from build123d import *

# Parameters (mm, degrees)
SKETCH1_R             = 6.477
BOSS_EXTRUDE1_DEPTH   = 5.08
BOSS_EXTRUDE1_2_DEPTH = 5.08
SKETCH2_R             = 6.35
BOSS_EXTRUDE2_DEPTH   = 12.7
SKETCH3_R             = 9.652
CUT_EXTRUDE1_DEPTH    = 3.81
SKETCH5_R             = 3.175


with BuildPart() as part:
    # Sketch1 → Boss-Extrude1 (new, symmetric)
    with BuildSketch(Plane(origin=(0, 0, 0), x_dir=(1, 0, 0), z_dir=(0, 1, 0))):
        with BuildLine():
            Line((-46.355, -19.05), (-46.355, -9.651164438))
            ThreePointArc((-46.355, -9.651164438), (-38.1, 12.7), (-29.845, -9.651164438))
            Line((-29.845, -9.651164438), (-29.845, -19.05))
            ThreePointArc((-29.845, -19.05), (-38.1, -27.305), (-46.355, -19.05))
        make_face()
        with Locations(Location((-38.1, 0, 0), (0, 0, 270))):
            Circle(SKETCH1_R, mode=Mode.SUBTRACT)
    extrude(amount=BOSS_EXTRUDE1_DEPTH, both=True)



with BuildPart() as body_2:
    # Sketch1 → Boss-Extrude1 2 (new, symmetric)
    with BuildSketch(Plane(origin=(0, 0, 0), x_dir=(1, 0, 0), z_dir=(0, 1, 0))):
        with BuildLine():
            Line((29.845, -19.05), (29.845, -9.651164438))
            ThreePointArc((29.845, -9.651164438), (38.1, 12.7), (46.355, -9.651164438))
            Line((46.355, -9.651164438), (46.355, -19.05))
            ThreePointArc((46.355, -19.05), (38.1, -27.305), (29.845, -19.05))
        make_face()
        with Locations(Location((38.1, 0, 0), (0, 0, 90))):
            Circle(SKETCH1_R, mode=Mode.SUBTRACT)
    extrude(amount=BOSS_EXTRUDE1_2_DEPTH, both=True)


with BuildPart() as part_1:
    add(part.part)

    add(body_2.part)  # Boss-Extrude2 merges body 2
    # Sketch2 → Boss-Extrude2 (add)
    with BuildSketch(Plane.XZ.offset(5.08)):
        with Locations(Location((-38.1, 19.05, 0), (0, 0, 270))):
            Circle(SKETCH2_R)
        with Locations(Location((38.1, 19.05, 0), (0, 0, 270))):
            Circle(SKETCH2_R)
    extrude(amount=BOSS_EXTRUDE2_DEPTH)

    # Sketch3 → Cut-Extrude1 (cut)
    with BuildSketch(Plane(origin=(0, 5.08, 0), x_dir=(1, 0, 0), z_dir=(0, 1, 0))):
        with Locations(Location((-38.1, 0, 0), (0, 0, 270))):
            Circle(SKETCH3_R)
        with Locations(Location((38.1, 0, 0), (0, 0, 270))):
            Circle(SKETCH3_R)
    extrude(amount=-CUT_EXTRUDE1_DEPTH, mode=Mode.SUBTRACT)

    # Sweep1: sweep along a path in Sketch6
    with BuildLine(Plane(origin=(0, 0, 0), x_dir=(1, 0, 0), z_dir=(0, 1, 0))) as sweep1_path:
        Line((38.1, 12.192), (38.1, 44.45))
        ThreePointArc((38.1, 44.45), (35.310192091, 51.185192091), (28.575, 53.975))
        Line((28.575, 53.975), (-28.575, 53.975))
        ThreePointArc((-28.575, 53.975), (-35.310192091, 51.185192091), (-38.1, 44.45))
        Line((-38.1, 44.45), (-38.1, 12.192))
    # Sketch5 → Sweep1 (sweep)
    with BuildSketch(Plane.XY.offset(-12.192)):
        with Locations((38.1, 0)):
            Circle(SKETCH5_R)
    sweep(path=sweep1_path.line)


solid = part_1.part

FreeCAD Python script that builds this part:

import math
import FreeCAD as App
import Part
import Sketcher
Q = App.Units.Quantity

doc = App.newDocument("Part")
body = doc.addObject("PartDesign::Body", "Body")

sketch1 = body.newObject("Sketcher::SketchObject", "Sketch")
sketch1.AttachmentSupport = (doc.getObject("XZ_Plane"), [""])
sketch1.MapMode = "FlatFace"
sketch1.addGeometry([
    Part.LineSegment(App.Vector(-46.355, 9.651164, 0), App.Vector(-46.355, 19.05, 0)),
    Part.ArcOfCircle(Part.Circle(App.Vector(-38.1, 19.05, 0), App.Vector(0, 0, 1), 8.255), math.radians(0), math.radians(180)),
    Part.LineSegment(App.Vector(-29.845, 19.05, 0), App.Vector(-29.845, 9.651164, 0)),
    Part.ArcOfCircle(Part.Circle(App.Vector(-38.1, 0, 0), App.Vector(0, 0, 1), 12.7), math.radians(130.541602), math.radians(409.458398)),
    Part.Circle(App.Vector(-38.1, 0, 0), App.Vector(0, 0, 1), 6.477),
], False)
sketch1.addConstraint([
    Sketcher.Constraint("Tangent", 0, 2, 1, 2),
    Sketcher.Constraint("Tangent", 1, 1, 2, 1),
    Sketcher.Constraint("Coincident", 2, 2, 3, 2),
    Sketcher.Constraint("Coincident", 3, 1, 0, 1),
    Sketcher.Constraint("Vertical", 0),
    Sketcher.Constraint("Vertical", 2),
    Sketcher.Constraint("Coincident", 4, 3, 3, 3),
    Sketcher.Constraint("PointOnObject", 3, 3, -1),
    Sketcher.Constraint("Horizontal", 2, 2, 3, 1),
    Sketcher.Constraint("Radius", 3, Q("0.5 in")),
    Sketcher.Constraint("Diameter", 4, Q("0.51 in")),
    Sketcher.Constraint("Radius", 1, Q("0.325 in")),
    Sketcher.Constraint("DistanceX", 1, 3, -1, 1, Q("1.5 in")),
    Sketcher.Constraint("DistanceY", -1, 1, 1, 3, Q("0.75 in")),
])
pad1 = body.newObject("PartDesign::Pad", "Pad")
pad1.Profile = sketch1
pad1.Length = Q("0.4 in")
pad1.Midplane = True
body2 = doc.addObject("PartDesign::Body", "Body001")

sketch2 = body2.newObject("Sketcher::SketchObject", "Sketch001")
sketch2.AttachmentSupport = (doc.getObject("XZ_Plane001"), [""])
sketch2.MapMode = "FlatFace"
sketch2.addGeometry([
    Part.LineSegment(App.Vector(29.845, 9.651164, 0), App.Vector(29.845, 19.05, 0)),
    Part.ArcOfCircle(Part.Circle(App.Vector(38.1, 19.05, 0), App.Vector(0, 0, 1), 8.255), math.radians(0), math.radians(180)),
    Part.LineSegment(App.Vector(46.355, 19.05, 0), App.Vector(46.355, 9.651164, 0)),
    Part.ArcOfCircle(Part.Circle(App.Vector(38.1, 0, 0), App.Vector(0, 0, 1), 12.7), math.radians(130.541602), math.radians(409.458398)),
    Part.Circle(App.Vector(38.1, 0, 0), App.Vector(0, 0, 1), 6.477),
], False)
sketch2.addConstraint([
    Sketcher.Constraint("Tangent", 0, 2, 1, 2),
    Sketcher.Constraint("Tangent", 1, 1, 2, 1),
    Sketcher.Constraint("Coincident", 2, 2, 3, 2),
    Sketcher.Constraint("Coincident", 3, 1, 0, 1),
    Sketcher.Constraint("Vertical", 0),
    Sketcher.Constraint("Vertical", 2),
    Sketcher.Constraint("Coincident", 4, 3, 3, 3),
    Sketcher.Constraint("PointOnObject", 3, 3, -1),
    Sketcher.Constraint("Horizontal", 2, 2, 3, 1),
    Sketcher.Constraint("Radius", 3, Q("0.5 in")),
    Sketcher.Constraint("Diameter", 4, Q("0.51 in")),
    Sketcher.Constraint("Radius", 1, Q("0.325 in")),
    Sketcher.Constraint("DistanceX", -1, 1, 1, 3, Q("1.5 in")),
    Sketcher.Constraint("DistanceY", -1, 1, 1, 3, Q("0.75 in")),
])
pad2 = body2.newObject("PartDesign::Pad", "Pad001")
pad2.Profile = sketch2
pad2.Length = Q("0.4 in")
pad2.Midplane = True
body.AllowCompound = True
doc.recompute()

boolean = body.newObject("PartDesign::Boolean", "Boolean")
boolean.Type = "Fuse"
boolean.addObjects([body2])

sketch3 = body.newObject("Sketcher::SketchObject", "Sketch002")
sketch3.AttachmentSupport = (doc.getObject("XZ_Plane"), [""])
sketch3.MapMode = "FlatFace"
sketch3.AttachmentOffset = App.Placement(App.Vector(0, 0, 0.2 * 25.4), App.Rotation())
sketch3.addGeometry([
    Part.Circle(App.Vector(-38.1, 19.05, 0), App.Vector(0, 0, 1), 6.35),
    Part.Circle(App.Vector(38.1, 19.05, 0), App.Vector(0, 0, 1), 6.35),
], False)
sketch3.addConstraint([
    Sketcher.Constraint("Equal", 0, 1),
    Sketcher.Constraint("Symmetric", 0, 3, 1, 3, -2),
    Sketcher.Constraint("Diameter", 0, Q("0.5 in")),
    Sketcher.Constraint("DistanceX", 0, 3, 1, 3, Q("3 in")),
    Sketcher.Constraint("DistanceY", -1, 1, 0, 3, Q("0.75 in")),
])
pad3 = body.newObject("PartDesign::Pad", "Pad002")
pad3.Profile = sketch3
pad3.Length = Q("0.5 in")

sketch4 = body.newObject("Sketcher::SketchObject", "Sketch003")
sketch4.AttachmentSupport = (doc.getObject("XZ_Plane"), [""])
sketch4.MapMode = "FlatFace"
sketch4.AttachmentOffset = App.Placement(App.Vector(0, 0, -0.2 * 25.4), App.Rotation())
sketch4.addGeometry([
    Part.Circle(App.Vector(-38.1, 0, 0), App.Vector(0, 0, 1), 9.652),
    Part.Circle(App.Vector(38.1, 0, 0), App.Vector(0, 0, 1), 9.652),
], False)
sketch4.addConstraint([
    Sketcher.Constraint("Equal", 0, 1),
    Sketcher.Constraint("Symmetric", 0, 3, 1, 3, -1, 1),
    Sketcher.Constraint("PointOnObject", 0, 3, -1),
    Sketcher.Constraint("Diameter", 0, Q("0.76 in")),
    Sketcher.Constraint("DistanceX", 0, 3, 1, 3, Q("3 in")),
])
pocket1 = body.newObject("PartDesign::Pocket", "Pocket")
pocket1.Profile = sketch4
pocket1.Length = Q("0.15 in")
pocket1.Reversed = True

sketch5 = body.newObject("Sketcher::SketchObject", "Sketch004")
sketch5.AttachmentSupport = (doc.getObject("XY_Plane"), [""])
sketch5.MapMode = "FlatFace"
sketch5.AttachmentOffset = App.Placement(App.Vector(0, 0, -0.48 * 25.4), App.Rotation())
sketch5.addGeometry(Part.Circle(App.Vector(38.1, 0, 0), App.Vector(0, 0, 1), 3.175), False)
sketch5.addConstraint([
    Sketcher.Constraint("PointOnObject", 0, 3, -1),
    Sketcher.Constraint("Diameter", 0, Q("0.25 in")),
    Sketcher.Constraint("DistanceX", -1, 1, 0, 3, Q("1.5 in")),
])

sketch6 = body.newObject("Sketcher::SketchObject", "Sketch005")
sketch6.AttachmentSupport = (doc.getObject("XZ_Plane"), [""])
sketch6.MapMode = "FlatFace"
sketch6.addGeometry([
    Part.LineSegment(App.Vector(38.1, -12.192, 0), App.Vector(38.1, -44.45, 0)),
    Part.ArcOfCircle(Part.Circle(App.Vector(28.575, -44.45, 0), App.Vector(0, 0, 1), 9.525), math.radians(-90), math.radians(0)),
    Part.LineSegment(App.Vector(28.575, -53.975, 0), App.Vector(-28.575, -53.975, 0)),
    Part.ArcOfCircle(Part.Circle(App.Vector(-28.575, -44.45, 0), App.Vector(0, 0, 1), 9.525), math.radians(180), math.radians(270)),
    Part.LineSegment(App.Vector(-38.1, -44.45, 0), App.Vector(-38.1, -12.192, 0)),
], False)
sketch6.addConstraint([
    Sketcher.Constraint("Tangent", 0, 2, 1, 2),
    Sketcher.Constraint("Tangent", 1, 1, 2, 1),
    Sketcher.Constraint("Tangent", 2, 2, 3, 2),
    Sketcher.Constraint("Tangent", 3, 1, 4, 1),
    Sketcher.Constraint("Vertical", 0),
    Sketcher.Constraint("Horizontal", 2),
    Sketcher.Constraint("Vertical", 4),
    Sketcher.Constraint("Equal", 1, 3),
    Sketcher.Constraint("Symmetric", 0, 1, 4, 2, -2),
    Sketcher.Constraint("Radius", 1, Q("0.375 in")),
    Sketcher.Constraint("DistanceX", 3, 1, 0, 2, Q("3 in")),
    Sketcher.Constraint("DistanceY", 0, 2, 0, 1, Q("1.27 in")),
    Sketcher.Constraint("DistanceY", 1, 3, -1, 1, Q("1.75 in")),
])
doc.recompute()

additivepipe = body.newObject("PartDesign::AdditivePipe", "AdditivePipe")
additivepipe.Profile = sketch5
additivepipe.Spine = (sketch6, ["Edge1", "Edge2", "Edge3", "Edge4", "Edge5"])

doc.recompute()
